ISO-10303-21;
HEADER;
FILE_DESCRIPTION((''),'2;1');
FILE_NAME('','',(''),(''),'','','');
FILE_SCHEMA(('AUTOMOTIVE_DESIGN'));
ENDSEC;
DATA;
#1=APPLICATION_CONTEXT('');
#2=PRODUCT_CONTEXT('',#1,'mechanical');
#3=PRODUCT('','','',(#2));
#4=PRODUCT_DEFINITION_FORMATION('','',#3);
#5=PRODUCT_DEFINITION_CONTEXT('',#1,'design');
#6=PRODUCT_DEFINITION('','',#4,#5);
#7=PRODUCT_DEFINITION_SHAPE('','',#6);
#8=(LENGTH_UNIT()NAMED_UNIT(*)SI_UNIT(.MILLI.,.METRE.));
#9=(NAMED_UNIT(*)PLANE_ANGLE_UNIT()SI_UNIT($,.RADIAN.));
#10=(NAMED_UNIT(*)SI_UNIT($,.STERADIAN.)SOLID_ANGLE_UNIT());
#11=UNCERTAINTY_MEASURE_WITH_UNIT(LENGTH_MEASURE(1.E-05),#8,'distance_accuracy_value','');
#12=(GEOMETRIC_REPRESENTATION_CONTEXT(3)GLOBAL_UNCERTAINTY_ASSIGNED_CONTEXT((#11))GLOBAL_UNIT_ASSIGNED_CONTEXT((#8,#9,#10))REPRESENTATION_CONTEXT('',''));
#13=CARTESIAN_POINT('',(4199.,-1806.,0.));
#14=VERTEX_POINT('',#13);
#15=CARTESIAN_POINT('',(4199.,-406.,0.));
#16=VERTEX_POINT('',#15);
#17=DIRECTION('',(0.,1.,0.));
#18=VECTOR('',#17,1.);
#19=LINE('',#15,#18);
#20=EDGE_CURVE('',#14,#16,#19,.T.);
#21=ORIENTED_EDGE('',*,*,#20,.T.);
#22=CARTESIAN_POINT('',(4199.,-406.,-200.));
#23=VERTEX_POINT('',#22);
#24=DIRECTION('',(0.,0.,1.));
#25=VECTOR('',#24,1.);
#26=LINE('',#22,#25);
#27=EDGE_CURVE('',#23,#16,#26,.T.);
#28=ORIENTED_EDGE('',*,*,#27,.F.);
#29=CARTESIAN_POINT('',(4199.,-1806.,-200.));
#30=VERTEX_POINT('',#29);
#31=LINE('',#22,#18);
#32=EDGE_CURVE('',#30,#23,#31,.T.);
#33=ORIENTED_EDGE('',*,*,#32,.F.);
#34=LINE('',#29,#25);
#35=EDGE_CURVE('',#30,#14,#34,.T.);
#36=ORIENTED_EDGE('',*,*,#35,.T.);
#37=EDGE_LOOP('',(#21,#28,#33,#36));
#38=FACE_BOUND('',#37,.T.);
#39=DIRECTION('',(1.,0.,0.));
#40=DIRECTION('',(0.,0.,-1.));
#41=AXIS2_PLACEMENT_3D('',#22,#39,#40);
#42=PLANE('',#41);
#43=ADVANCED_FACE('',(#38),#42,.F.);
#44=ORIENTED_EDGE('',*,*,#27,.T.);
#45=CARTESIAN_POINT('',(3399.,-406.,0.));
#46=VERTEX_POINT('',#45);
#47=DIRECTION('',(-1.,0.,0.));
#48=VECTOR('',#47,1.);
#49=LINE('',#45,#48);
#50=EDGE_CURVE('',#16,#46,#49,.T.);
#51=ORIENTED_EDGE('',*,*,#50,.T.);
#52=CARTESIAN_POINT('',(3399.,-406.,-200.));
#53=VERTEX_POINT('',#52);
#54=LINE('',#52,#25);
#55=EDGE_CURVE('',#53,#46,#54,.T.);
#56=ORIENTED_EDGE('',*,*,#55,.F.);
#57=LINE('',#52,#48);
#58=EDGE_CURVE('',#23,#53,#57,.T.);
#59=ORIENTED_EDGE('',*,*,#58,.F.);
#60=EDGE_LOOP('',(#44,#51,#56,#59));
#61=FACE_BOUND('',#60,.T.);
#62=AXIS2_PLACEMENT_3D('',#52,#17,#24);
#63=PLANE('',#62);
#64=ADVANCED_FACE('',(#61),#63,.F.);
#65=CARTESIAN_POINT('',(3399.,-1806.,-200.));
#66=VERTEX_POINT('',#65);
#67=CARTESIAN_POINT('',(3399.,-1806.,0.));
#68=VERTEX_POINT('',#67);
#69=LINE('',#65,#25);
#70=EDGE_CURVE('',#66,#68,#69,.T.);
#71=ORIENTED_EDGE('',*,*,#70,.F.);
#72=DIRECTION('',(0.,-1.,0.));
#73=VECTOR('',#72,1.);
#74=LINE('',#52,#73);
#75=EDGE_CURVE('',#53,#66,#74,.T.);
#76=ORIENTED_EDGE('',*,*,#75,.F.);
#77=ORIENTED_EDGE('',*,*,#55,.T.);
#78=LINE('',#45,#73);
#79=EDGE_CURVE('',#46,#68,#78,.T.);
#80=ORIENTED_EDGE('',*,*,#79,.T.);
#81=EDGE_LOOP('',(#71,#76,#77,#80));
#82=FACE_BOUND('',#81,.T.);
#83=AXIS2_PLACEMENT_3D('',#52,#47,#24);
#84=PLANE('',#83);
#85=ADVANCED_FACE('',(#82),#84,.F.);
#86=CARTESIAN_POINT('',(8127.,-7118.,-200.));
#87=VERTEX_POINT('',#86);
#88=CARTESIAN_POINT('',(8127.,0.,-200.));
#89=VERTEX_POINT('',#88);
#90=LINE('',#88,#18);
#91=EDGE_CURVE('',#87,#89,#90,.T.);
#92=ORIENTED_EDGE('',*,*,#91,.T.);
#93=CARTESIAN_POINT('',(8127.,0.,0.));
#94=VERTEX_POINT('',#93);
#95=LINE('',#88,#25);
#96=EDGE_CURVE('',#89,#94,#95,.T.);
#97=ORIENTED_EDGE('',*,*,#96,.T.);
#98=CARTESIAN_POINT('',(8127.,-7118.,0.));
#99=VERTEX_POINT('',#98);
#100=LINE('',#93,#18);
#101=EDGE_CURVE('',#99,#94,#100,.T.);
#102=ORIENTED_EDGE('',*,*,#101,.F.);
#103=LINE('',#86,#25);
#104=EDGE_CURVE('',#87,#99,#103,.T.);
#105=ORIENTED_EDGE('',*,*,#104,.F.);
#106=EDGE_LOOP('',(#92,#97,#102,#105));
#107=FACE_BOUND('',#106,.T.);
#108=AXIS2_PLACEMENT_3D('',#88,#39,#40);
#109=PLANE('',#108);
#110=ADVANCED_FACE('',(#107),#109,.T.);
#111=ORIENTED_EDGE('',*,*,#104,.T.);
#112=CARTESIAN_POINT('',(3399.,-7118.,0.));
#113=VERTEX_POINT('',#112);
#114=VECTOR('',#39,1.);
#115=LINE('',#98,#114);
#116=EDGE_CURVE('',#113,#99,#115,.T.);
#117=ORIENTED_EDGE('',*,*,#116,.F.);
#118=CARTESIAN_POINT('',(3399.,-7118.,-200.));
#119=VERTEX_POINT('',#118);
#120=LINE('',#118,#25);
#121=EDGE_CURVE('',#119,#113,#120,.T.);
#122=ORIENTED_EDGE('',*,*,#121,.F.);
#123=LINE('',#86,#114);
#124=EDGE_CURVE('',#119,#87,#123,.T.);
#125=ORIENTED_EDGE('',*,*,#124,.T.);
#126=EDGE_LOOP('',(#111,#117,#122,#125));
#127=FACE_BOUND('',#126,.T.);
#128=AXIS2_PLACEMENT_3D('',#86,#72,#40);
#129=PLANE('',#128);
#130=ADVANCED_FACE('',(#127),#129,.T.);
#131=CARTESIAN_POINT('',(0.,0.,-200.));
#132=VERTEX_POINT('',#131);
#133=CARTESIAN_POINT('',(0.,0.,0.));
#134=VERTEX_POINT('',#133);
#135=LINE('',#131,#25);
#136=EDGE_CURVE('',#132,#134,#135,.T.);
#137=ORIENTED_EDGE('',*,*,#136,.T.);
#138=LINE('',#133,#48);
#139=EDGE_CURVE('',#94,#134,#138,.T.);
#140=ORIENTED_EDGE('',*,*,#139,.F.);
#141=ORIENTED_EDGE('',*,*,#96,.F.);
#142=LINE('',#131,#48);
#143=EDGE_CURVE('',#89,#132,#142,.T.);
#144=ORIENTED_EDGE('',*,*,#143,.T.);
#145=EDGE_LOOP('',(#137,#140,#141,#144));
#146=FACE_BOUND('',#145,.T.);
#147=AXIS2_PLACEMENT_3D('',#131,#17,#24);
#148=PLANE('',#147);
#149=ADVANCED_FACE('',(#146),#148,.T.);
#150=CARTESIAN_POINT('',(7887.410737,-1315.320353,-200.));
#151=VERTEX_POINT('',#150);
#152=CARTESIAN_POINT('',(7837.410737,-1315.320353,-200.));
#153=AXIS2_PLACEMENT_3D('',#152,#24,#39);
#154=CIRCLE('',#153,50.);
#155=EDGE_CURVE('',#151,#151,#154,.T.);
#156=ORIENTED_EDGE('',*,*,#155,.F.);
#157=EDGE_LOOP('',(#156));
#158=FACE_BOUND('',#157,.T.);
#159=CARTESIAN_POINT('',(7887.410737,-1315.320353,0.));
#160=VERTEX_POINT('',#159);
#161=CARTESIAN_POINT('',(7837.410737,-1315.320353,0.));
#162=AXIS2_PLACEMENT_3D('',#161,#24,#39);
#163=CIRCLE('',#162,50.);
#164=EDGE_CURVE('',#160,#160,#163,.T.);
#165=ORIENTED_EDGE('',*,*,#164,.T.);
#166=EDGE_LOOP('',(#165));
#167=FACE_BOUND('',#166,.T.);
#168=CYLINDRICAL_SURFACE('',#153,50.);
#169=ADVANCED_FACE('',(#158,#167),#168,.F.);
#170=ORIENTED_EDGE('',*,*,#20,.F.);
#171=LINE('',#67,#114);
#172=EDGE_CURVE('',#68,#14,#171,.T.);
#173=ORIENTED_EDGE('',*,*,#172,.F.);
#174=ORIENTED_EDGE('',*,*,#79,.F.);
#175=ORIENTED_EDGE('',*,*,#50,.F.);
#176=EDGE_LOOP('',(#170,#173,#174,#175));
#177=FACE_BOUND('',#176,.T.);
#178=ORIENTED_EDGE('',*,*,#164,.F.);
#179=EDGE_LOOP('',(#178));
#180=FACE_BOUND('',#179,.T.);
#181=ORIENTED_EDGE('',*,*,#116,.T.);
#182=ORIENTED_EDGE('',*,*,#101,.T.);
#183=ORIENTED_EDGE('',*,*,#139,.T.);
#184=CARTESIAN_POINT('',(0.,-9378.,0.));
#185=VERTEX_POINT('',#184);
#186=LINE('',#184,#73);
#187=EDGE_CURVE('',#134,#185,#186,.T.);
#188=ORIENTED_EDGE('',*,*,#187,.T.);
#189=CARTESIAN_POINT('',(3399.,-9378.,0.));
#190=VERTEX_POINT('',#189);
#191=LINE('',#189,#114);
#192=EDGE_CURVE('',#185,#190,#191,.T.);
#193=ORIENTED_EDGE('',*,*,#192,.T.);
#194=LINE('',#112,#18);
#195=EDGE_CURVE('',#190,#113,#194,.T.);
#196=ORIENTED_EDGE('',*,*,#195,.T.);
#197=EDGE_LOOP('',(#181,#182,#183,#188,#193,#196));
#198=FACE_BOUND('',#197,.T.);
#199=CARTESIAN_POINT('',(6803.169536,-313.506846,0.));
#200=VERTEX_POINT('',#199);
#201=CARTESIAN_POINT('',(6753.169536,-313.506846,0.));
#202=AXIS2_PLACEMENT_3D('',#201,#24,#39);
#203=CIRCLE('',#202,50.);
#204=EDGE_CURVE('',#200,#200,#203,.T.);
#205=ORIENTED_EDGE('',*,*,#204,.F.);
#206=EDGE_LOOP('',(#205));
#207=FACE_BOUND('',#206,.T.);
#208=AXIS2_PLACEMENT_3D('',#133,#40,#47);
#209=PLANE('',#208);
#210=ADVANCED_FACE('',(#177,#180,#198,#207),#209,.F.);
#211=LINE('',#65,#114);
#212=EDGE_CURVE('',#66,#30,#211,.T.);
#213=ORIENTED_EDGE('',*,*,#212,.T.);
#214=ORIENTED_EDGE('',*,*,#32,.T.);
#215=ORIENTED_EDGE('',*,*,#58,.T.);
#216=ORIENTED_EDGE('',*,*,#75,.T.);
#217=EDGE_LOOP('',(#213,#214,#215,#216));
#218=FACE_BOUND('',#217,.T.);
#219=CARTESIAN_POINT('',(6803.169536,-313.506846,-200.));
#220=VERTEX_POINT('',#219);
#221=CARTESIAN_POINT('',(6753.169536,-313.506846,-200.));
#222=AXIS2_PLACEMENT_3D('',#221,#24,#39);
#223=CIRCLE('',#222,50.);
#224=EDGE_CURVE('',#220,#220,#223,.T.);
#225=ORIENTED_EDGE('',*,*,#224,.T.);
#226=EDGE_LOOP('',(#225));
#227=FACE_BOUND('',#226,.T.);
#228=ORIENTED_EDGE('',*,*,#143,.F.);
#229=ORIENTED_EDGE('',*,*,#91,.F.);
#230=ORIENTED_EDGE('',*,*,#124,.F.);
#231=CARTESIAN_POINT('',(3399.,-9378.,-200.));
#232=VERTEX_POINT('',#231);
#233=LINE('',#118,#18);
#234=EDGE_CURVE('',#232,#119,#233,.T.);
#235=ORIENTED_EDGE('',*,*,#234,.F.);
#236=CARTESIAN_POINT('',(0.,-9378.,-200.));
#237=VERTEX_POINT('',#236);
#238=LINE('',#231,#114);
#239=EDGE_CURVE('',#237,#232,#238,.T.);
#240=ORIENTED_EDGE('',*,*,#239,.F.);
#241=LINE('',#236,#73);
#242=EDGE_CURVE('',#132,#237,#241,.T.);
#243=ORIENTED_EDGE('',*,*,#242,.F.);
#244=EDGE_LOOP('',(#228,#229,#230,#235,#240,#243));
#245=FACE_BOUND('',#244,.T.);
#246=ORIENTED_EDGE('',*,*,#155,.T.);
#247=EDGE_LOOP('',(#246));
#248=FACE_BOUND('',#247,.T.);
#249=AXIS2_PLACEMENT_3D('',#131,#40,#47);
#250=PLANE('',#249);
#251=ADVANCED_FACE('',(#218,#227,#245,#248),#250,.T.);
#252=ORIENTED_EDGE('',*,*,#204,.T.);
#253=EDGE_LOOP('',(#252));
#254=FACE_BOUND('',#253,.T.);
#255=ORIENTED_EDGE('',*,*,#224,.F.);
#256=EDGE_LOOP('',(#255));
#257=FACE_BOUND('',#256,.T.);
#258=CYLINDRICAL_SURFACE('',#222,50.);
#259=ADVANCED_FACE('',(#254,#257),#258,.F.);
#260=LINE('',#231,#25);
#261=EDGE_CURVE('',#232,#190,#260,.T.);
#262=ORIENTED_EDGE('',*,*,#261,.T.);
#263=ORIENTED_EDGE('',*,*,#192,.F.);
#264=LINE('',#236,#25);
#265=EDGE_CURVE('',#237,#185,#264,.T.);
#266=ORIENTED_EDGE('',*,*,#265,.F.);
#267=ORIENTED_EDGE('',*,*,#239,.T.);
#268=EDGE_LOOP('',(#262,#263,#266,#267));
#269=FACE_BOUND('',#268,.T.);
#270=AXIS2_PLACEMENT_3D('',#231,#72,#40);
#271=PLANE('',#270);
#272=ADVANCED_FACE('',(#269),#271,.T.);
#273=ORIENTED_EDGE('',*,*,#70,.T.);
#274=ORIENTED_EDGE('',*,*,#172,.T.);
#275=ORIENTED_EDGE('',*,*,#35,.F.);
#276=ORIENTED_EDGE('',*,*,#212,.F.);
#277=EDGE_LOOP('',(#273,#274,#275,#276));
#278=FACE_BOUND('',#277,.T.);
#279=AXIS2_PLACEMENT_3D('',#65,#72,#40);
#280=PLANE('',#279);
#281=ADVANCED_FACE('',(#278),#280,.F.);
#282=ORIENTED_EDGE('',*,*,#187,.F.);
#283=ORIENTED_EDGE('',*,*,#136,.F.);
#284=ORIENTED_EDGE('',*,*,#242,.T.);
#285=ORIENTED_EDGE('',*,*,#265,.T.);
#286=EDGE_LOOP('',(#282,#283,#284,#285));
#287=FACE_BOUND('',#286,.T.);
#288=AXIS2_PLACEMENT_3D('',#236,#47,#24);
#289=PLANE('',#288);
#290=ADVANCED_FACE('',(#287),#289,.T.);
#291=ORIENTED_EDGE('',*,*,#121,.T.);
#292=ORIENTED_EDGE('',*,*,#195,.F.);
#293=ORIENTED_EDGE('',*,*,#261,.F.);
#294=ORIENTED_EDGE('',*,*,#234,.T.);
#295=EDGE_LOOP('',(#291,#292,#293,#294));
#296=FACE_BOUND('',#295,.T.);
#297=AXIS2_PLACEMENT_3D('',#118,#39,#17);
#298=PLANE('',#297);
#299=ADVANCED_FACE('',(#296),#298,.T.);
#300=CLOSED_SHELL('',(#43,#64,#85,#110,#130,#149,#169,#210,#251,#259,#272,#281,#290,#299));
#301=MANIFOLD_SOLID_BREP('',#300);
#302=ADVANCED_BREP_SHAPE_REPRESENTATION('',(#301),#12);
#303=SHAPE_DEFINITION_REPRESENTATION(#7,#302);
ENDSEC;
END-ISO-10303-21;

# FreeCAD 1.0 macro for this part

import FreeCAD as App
import Part
import Sketcher
Q = App.Units.Quantity

doc = App.newDocument("Part")
params = doc.addObject("Spreadsheet::Sheet", "Params")
for row, (alias, value) in enumerate([
    ("sketch1_diameter", "100 mm"),
    ("sketch1_width", "8127 mm"),
    ("sketch1_width2", "3399 mm"),
    ("sketch1_width3", "800 mm"),
    ("sketch1_height", "9378 mm"),
    ("pad1_length", "200 mm"),
], start=1):
    params.set(f"A{row}", alias)
    params.set(f"B{row}", "=" + value)
    params.setAlias(f"B{row}", alias)

body = doc.addObject("PartDesign::Body", "Body")

sketch1 = body.newObject("Sketcher::SketchObject", "Sketch")
sketch1.AttachmentSupport = (doc.getObject("XY_Plane"), [""])
sketch1.MapMode = "FlatFace"
sketch1.addGeometry(Part.LineSegment(App.Vector(8127, 0, 0), App.Vector(0, 0, 0)), False)
sketch1.addGeometry(Part.LineSegment(App.Vector(0, 0, 0), App.Vector(0, -9378, 0)), False)
sketch1.addGeometry(Part.LineSegment(App.Vector(0, -9378, 0), App.Vector(3399, -9378, 0)), False)
sketch1.addGeometry(Part.LineSegment(App.Vector(3399, -9378, 0), App.Vector(3399, -7118, 0)), False)
sketch1.addGeometry(Part.LineSegment(App.Vector(3399, -7118, 0), App.Vector(8127, -7118, 0)), False)
sketch1.addGeometry(Part.LineSegment(App.Vector(8127, -7118, 0), App.Vector(8127, 0, 0)), False)
sketch1.addGeometry(Part.Circle(App.Vector(7837.410737, -1315.320353, 0), App.Vector(0, 0, 1), 50), False)
sketch1.addGeometry(Part.LineSegment(App.Vector(3399, -1806, 0), App.Vector(3399, -406, 0)), False)
sketch1.addGeometry(Part.LineSegment(App.Vector(3399, -406, 0), App.Vector(4199, -406, 0)), False)
sketch1.addGeometry(Part.LineSegment(App.Vector(4199, -406, 0), App.Vector(4199, -1806, 0)), False)
sketch1.addGeometry(Part.LineSegment(App.Vector(4199, -1806, 0), App.Vector(3399, -1806, 0)), False)
sketch1.addGeometry(Part.Circle(App.Vector(6753.169536, -313.506846, 0), App.Vector(0, 0, 1), 50), False)
sketch1.addConstraint(Sketcher.Constraint("Coincident", 0, 2, 1, 1))
sketch1.addConstraint(Sketcher.Constraint("Coincident", 1, 2, 2, 1))
sketch1.addConstraint(Sketcher.Constraint("Coincident", 2, 2, 3, 1))
sketch1.addConstraint(Sketcher.Constraint("Coincident", 3, 2, 4, 1))
sketch1.addConstraint(Sketcher.Constraint("Coincident", 4, 2, 5, 1))
sketch1.addConstraint(Sketcher.Constraint("Coincident", 5, 2, 0, 1))
sketch1.addConstraint(Sketcher.Constraint("Coincident", 7, 2, 8, 1))
sketch1.addConstraint(Sketcher.Constraint("Coincident", 8, 2, 9, 1))
sketch1.addConstraint(Sketcher.Constraint("Coincident", 9, 2, 10, 1))
sketch1.addConstraint(Sketcher.Constraint("Coincident", 10, 2, 7, 1))
sketch1.addConstraint(Sketcher.Constraint("Horizontal", 0))
sketch1.addConstraint(Sketcher.Constraint("Vertical", 1))
sketch1.addConstraint(Sketcher.Constraint("Horizontal", 2))
sketch1.addConstraint(Sketcher.Constraint("Vertical", 3))
sketch1.addConstraint(Sketcher.Constraint("Horizontal", 4))
sketch1.addConstraint(Sketcher.Constraint("Vertical", 5))
sketch1.addConstraint(Sketcher.Constraint("Vertical", 7))
sketch1.addConstraint(Sketcher.Constraint("Horizontal", 8))
sketch1.addConstraint(Sketcher.Constraint("Vertical", 9))
sketch1.addConstraint(Sketcher.Constraint("Horizontal", 10))
sketch1.addConstraint(Sketcher.Constraint("Coincident", 0, 2, -1, 1))
sketch1.addConstraint(Sketcher.Constraint("Equal", 6, 11))
sketch1.addConstraint(Sketcher.Constraint("Vertical", 3, 2, 7, 2))
sketch1.addConstraint(Sketcher.Constraint("Diameter", 6, Q("100 mm")))
sketch1.addConstraint(Sketcher.Constraint("DistanceX", 0, 2, 0, 1, Q("8127 mm")))
sketch1.addConstraint(Sketcher.Constraint("DistanceX", 2, 1, 2, 2, Q("3399 mm")))
sketch1.addConstraint(Sketcher.Constraint("DistanceX", 8, 1, 8, 2, Q("800 mm")))
sketch1.addConstraint(Sketcher.Constraint("DistanceY", 1, 2, 1, 1, Q("9378 mm")))
sketch1.addConstraint(Sketcher.Constraint("DistanceY", 3, 1, 3, 2, Q("2260 mm")))
sketch1.addConstraint(Sketcher.Constraint("DistanceY", 7, 1, 7, 2, Q("1400 mm")))
sketch1.addConstraint(Sketcher.Constraint("DistanceY", 7, 2, -1, 1, Q("406 mm")))
sketch1.addConstraint(Sketcher.Constraint("DistanceX", 11, 3, 6, 3, Q("1084.241201 mm")))
sketch1.addConstraint(Sketcher.Constraint("DistanceX", -1, 1, 6, 3, Q("7837.410737 mm")))
sketch1.addConstraint(Sketcher.Constraint("DistanceY", 6, 3, -1, 1, Q("1315.320353 mm")))
sketch1.addConstraint(Sketcher.Constraint("DistanceY", 11, 3, -1, 1, Q("313.506846 mm")))
sketch1.setExpression("Constraints[23]", "Params.sketch1_diameter")
sketch1.setExpression("Constraints[24]", "Params.sketch1_width")
sketch1.setExpression("Constraints[25]", "Params.sketch1_width2")
sketch1.setExpression("Constraints[26]", "Params.sketch1_width3")
sketch1.setExpression("Constraints[27]", "Params.sketch1_height")
pad1 = body.newObject("PartDesign::Pad", "Pad")
pad1.Profile = sketch1
pad1.setExpression("Length", "Params.pad1_length")
pad1.Reversed = True

doc.recompute()
